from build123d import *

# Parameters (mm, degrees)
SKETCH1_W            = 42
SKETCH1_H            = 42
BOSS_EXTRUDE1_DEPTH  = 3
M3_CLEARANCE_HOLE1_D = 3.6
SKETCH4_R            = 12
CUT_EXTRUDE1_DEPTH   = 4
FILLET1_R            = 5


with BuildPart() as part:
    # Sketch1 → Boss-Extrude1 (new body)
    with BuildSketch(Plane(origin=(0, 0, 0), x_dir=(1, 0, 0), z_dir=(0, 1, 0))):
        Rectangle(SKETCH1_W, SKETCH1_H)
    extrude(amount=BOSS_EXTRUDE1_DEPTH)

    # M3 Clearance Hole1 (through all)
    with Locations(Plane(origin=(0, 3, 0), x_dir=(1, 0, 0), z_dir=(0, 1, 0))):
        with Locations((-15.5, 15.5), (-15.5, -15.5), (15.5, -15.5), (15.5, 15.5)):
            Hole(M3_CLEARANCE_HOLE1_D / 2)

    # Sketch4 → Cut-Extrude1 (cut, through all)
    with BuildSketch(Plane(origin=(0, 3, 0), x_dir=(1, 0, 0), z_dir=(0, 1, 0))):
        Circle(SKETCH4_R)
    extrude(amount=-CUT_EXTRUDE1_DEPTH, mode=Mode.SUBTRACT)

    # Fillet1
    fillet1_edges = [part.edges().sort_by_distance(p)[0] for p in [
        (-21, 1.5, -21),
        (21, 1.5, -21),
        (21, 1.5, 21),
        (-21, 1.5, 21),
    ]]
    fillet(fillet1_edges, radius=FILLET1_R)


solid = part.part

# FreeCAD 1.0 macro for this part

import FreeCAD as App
import Part
import Sketcher

V = App.Vector
Q = App.Units.Quantity


def edges_at(feature, points):
    """Names of the edges that pass closest to the given points."""
    edges = feature.Shape.Edges
    near = lambda p: min(range(len(edges)), key=lambda i: edges[i].distToShape(Part.Vertex(*p))[0])
    return sorted({f"Edge{near(p) + 1}" for p in points})


def add_polygon(sketch, points):
    """Adds a closed chain of lines whose ends are joined by coincident constraints."""
    first, n = sketch.GeometryCount, len(points)
    for a, b in zip(points, points[1:] + points[:1]):
        sketch.addGeometry(Part.LineSegment(App.Vector(*a, 0), App.Vector(*b, 0)), False)
    for i in range(n):
        sketch.addConstraint(Sketcher.Constraint("Coincident", first + i, 2, first + (i + 1) % n, 1))

doc = App.newDocument("Part")
body = doc.addObject("PartDesign::Body", "Body")

# Sketch on XZ plane
sketch1 = doc.addObject("Sketcher::SketchObject", "Sketch")
body.addObject(sketch1)
sketch1.AttachmentSupport = (doc.XZ_Plane, [""])
sketch1.MapMode = "FlatFace"
add_polygon(sketch1, [(-21, -21), (-21, 21), (21, 21), (21, -21)])  # lines 0-3
sketch1.addConstraint(Sketcher.Constraint("Vertical", 0))
sketch1.addConstraint(Sketcher.Constraint("Horizontal", 1))
sketch1.addConstraint(Sketcher.Constraint("Vertical", 2))
sketch1.addConstraint(Sketcher.Constraint("Horizontal", 3))
sketch1.addConstraint(Sketcher.Constraint("Symmetric", 0, 2, 2, 2, -1, 1))
sketch1.addConstraint(Sketcher.Constraint("Equal", 3, 0))
sketch1.addConstraint(Sketcher.Constraint("DistanceX", 1, 1, 1, 2, Q("42 mm")))
pad1 = doc.addObject("PartDesign::Pad", "Pad")
body.addObject(pad1)
pad1.Profile = sketch1
pad1.Length = 3
pad1.Reversed = True

# Sketch on XZ plane
sketch2 = doc.addObject("Sketcher::SketchObject", "Sketch001")
body.addObject(sketch2)
sketch2.AttachmentSupport = (doc.XZ_Plane, [""])
sketch2.MapMode = "FlatFace"
sketch2.AttachmentOffset = App.Placement(V(0, 0, -3), App.Rotation())
sketch2.addGeometry(Part.Circle(V(-15.5, -15.5, 0), V(0, 0, 1), 1.8), False)
sketch2.addGeometry(Part.Circle(V(-15.5, 15.5, 0), V(0, 0, 1), 1.8), False)
sketch2.addGeometry(Part.Circle(V(15.5, 15.5, 0), V(0, 0, 1), 1.8), False)
sketch2.addGeometry(Part.Circle(V(15.5, -15.5, 0), V(0, 0, 1), 1.8), False)
sketch2.addConstraint(Sketcher.Constraint("Equal", 0, 1))
sketch2.addConstraint(Sketcher.Constraint("Equal", 1, 2))
sketch2.addConstraint(Sketcher.Constraint("Equal", 2, 3))
sketch2.addConstraint(Sketcher.Constraint("Symmetric", 0, 3, 2, 3, -1, 1))
sketch2.addConstraint(Sketcher.Constraint("Symmetric", 1, 3, 3, 3, -1, 1))
sketch2.addConstraint(Sketcher.Constraint("Symmetric", 1, 3, 2, 3, -2))
sketch2.addConstraint(Sketcher.Constraint("Diameter", 0, Q("3.6 mm")))
sketch2.addConstraint(Sketcher.Constraint("DistanceY", 0, 3, 1, 3, Q("31 mm")))
sketch2.addConstraint(Sketcher.Constraint("DistanceX", 1, 3, 2, 3, Q("31 mm")))
doc.recompute()
hole = doc.addObject("PartDesign::Hole", "Hole")
body.addObject(hole)
hole.Profile = sketch2
hole.ThreadType = "None"
hole.Diameter = 3.6
hole.DepthType = "ThroughAll"
hole.Reversed = True

# Sketch on XZ plane
sketch3 = doc.addObject("Sketcher::SketchObject", "Sketch002")
body.addObject(sketch3)
sketch3.AttachmentSupport = (doc.XZ_Plane, [""])
sketch3.MapMode = "FlatFace"
sketch3.AttachmentOffset = App.Placement(V(0, 0, -3), App.Rotation())
sketch3.addGeometry(Part.Circle(V(0, 0, 0), V(0, 0, 1), 12), False)
sketch3.addConstraint(Sketcher.Constraint("Coincident", 0, 3, -1, 1))
sketch3.addConstraint(Sketcher.Constraint("Diameter", 0, Q("24 mm")))
pocket1 = doc.addObject("PartDesign::Pocket", "Pocket")
body.addObject(pocket1)
pocket1.Profile = sketch3
pocket1.Type = "ThroughAll"
pocket1.Reversed = True
doc.recompute()

fillet = doc.addObject("PartDesign::Fillet", "Fillet")
body.addObject(fillet)
fillet.Base = (pocket1, edges_at(pocket1, [
    (-21, 1.5, -21),
    (21, 1.5, -21),
    (21, 1.5, 21),
    (-21, 1.5, 21),
]))
fillet.Radius = 5

doc.recompute()
